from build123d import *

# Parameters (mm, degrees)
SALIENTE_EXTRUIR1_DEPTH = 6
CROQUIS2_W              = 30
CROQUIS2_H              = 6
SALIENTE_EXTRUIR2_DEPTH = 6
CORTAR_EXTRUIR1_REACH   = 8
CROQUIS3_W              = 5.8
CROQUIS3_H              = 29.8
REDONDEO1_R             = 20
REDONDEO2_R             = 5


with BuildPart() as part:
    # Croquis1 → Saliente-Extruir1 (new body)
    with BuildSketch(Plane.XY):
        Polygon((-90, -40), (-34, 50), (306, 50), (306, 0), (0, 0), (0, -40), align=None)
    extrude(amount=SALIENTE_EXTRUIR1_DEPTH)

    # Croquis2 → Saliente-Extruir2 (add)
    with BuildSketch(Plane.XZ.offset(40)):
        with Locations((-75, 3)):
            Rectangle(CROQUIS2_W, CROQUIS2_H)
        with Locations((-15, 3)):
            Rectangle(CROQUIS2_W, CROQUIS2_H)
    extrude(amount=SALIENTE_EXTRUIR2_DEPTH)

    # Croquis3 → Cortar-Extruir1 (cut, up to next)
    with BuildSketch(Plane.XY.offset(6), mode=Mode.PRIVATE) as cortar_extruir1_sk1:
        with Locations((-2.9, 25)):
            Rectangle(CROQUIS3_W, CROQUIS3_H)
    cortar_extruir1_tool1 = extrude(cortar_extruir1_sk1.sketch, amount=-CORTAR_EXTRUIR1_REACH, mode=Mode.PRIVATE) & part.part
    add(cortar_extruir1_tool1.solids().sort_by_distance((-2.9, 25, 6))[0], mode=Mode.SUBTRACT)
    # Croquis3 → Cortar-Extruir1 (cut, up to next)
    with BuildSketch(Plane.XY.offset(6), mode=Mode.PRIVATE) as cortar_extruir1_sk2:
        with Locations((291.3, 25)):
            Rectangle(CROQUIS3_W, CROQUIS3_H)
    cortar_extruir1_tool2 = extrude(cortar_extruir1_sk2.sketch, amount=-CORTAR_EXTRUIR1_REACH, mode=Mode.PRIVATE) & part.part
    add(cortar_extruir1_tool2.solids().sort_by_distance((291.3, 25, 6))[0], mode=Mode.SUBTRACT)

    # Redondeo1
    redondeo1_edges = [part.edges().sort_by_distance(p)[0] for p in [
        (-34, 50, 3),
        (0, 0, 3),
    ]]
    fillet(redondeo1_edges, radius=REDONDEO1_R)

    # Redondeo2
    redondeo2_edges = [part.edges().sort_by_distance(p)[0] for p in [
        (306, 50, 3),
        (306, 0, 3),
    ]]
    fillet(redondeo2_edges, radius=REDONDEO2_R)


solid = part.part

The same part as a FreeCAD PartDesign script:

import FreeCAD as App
import Part
import Sketcher
from FreeCAD import Vector
Q = App.Units.Quantity


def edges_at(feature, points):
    """Names of the edges that pass closest to the given points."""
    edges = feature.Shape.Edges
    near = lambda p: min(range(len(edges)), key=lambda i: edges[i].distToShape(Part.Vertex(*p))[0])
    return sorted({f"Edge{near(p) + 1}" for p in points})


def add_polygon(sketch, points):
    """Adds a closed chain of lines whose ends are joined by coincident constraints."""
    first, n = sketch.GeometryCount, len(points)
    for a, b in zip(points, points[1:] + points[:1]):
        sketch.addGeometry(Part.LineSegment(App.Vector(*a, 0), App.Vector(*b, 0)), False)
    for i in range(n):
        sketch.addConstraint(Sketcher.Constraint("Coincident", first + i, 2, first + (i + 1) % n, 1))

doc = App.newDocument("Part")
params = doc.addObject("Spreadsheet::Sheet", "Params")
for row, (alias, value) in enumerate([
    ("sketch1_width", "90 mm"),
    ("sketch1_width2", "306 mm"),
    ("sketch1_width3", "340 mm"),
    ("sketch1_height", "40 mm"),
    ("sketch1_height2", "50 mm"),
    ("pad1_length", "6 mm"),
    ("sketch2_width", "30 mm"),
    ("sketch2_height", "6 mm"),
    ("pad2_length", "6 mm"),
    ("sketch3_width", "5.8 mm"),
    ("sketch3_height", "29.8 mm"),
    ("sketch4_width", "5.8 mm"),
    ("sketch4_height", "29.8 mm"),
    ("fillet_radius", "20 mm"),
    ("fillet2_radius", "5 mm"),
], start=1):
    params.set(f"A{row}", alias)
    params.set(f"B{row}", "=" + value)
    params.setAlias(f"B{row}", alias)

body = doc.addObject("PartDesign::Body", "Body")

sketch1 = body.newObject("Sketcher::SketchObject", "Sketch")
sketch1.AttachmentSupport = (doc.getObject("XY_Plane"), [""])
sketch1.MapMode = "FlatFace"
add_polygon(sketch1, [(-34, 50), (-90, -40), (0, -40), (0, 0), (306, 0), (306, 50)])
sketch1.addConstraint([
    Sketcher.Constraint("Horizontal", 1),
    Sketcher.Constraint("Vertical", 2),
    Sketcher.Constraint("Horizontal", 3),
    Sketcher.Constraint("Vertical", 4),
    Sketcher.Constraint("Horizontal", 5),
    Sketcher.Constraint("Coincident", 2, 2, -1, 1),
    Sketcher.Constraint("DistanceX", 1, 1, 1, 2, Q("90 mm")),
    Sketcher.Constraint("DistanceX", 3, 1, 3, 2, Q("306 mm")),
    Sketcher.Constraint("DistanceX", 5, 2, 5, 1, Q("340 mm")),
    Sketcher.Constraint("DistanceY", 2, 1, 2, 2, Q("40 mm")),
    Sketcher.Constraint("DistanceY", 4, 1, 4, 2, Q("50 mm")),
])
sketch1.setExpression("Constraints[12]", "Params.sketch1_width")
sketch1.setExpression("Constraints[13]", "Params.sketch1_width2")
sketch1.setExpression("Constraints[14]", "Params.sketch1_width3")
sketch1.setExpression("Constraints[15]", "Params.sketch1_height")
sketch1.setExpression("Constraints[16]", "Params.sketch1_height2")
pad1 = body.newObject("PartDesign::Pad", "Pad")
pad1.Profile = sketch1
pad1.setExpression("Length", "Params.pad1_length")

sketch2 = body.newObject("Sketcher::SketchObject", "Sketch001")
sketch2.AttachmentSupport = (doc.getObject("XZ_Plane"), [""])
sketch2.MapMode = "FlatFace"
sketch2.AttachmentOffset = App.Placement(Vector(0, 0, 40), App.Rotation())
add_polygon(sketch2, [(-90, 6), (-90, 0), (-60, 0), (-60, 6)])
add_polygon(sketch2, [(-30, 6), (-30, 0), (0, 0), (0, 6)])
sketch2.addConstraint([
    Sketcher.Constraint("Vertical", 0),
    Sketcher.Constraint("Horizontal", 1),
    Sketcher.Constraint("Vertical", 2),
    Sketcher.Constraint("Horizontal", 3),
    Sketcher.Constraint("Vertical", 4),
    Sketcher.Constraint("Horizontal", 5),
    Sketcher.Constraint("Vertical", 6),
    Sketcher.Constraint("Horizontal", 7),
    Sketcher.Constraint("Coincident", 5, 2, -1, 1),
    Sketcher.Constraint("PointOnObject", 0, 2, -1),
    Sketcher.Constraint("Horizontal", 3, 2, 6, 2),
    Sketcher.Constraint("Equal", 3, 5),
    Sketcher.Constraint("DistanceX", 1, 1, 1, 2, Q("30 mm")),
    Sketcher.Constraint("DistanceY", 0, 2, 0, 1, Q("6 mm")),
    Sketcher.Constraint("DistanceX", 0, 2, -1, 1, Q("90 mm")),
])
sketch2.setExpression("Constraints[20]", "Params.sketch2_width")
sketch2.setExpression("Constraints[21]", "Params.sketch2_height")
pad2 = body.newObject("PartDesign::Pad", "Pad001")
pad2.Profile = sketch2
pad2.setExpression("Length", "Params.pad2_length")

sketch3 = body.newObject("Sketcher::SketchObject", "Sketch002")
sketch3.AttachmentSupport = (doc.getObject("XY_Plane"), [""])
sketch3.MapMode = "FlatFace"
sketch3.AttachmentOffset = App.Placement(Vector(0, 0, 6), App.Rotation())
add_polygon(sketch3, [(-5.8, 39.9), (-5.8, 10.1), (0, 10.1), (0, 39.9)])
sketch3.addConstraint([
    Sketcher.Constraint("Vertical", 0),
    Sketcher.Constraint("Horizontal", 1),
    Sketcher.Constraint("Vertical", 2),
    Sketcher.Constraint("Horizontal", 3),
    Sketcher.Constraint("PointOnObject", 1, 2, -2),
    Sketcher.Constraint("DistanceX", 1, 1, 1, 2, Q("5.8 mm")),
    Sketcher.Constraint("DistanceY", 0, 2, 0, 1, Q("29.8 mm")),
    Sketcher.Constraint("DistanceY", -1, 1, 0, 2, Q("10.1 mm")),
])
sketch3.setExpression("Constraints[9]", "Params.sketch3_width")
sketch3.setExpression("Constraints[10]", "Params.sketch3_height")
pocket1 = body.newObject("PartDesign::Pocket", "Pocket")
pocket1.Profile = sketch3
pocket1.Type = "UpToFirst"

sketch4 = body.newObject("Sketcher::SketchObject", "Sketch003")
sketch4.AttachmentSupport = (doc.getObject("XY_Plane"), [""])
sketch4.MapMode = "FlatFace"
sketch4.AttachmentOffset = App.Placement(Vector(0, 0, 6), App.Rotation())
add_polygon(sketch4, [(288.4, 39.9), (288.4, 10.1), (294.2, 10.1), (294.2, 39.9)])
sketch4.addConstraint([
    Sketcher.Constraint("Vertical", 0),
    Sketcher.Constraint("Horizontal", 1),
    Sketcher.Constraint("Vertical", 2),
    Sketcher.Constraint("Horizontal", 3),
    Sketcher.Constraint("DistanceX", 1, 1, 1, 2, Q("5.8 mm")),
    Sketcher.Constraint("DistanceY", 0, 2, 0, 1, Q("29.8 mm")),
    Sketcher.Constraint("DistanceX", -1, 1, 0, 2, Q("288.4 mm")),
    Sketcher.Constraint("DistanceY", -1, 1, 0, 2, Q("10.1 mm")),
])
sketch4.setExpression("Constraints[8]", "Params.sketch4_width")
sketch4.setExpression("Constraints[9]", "Params.sketch4_height")
pocket2 = body.newObject("PartDesign::Pocket", "Pocket001")
pocket2.Profile = sketch4
pocket2.Type = "UpToFirst"
doc.recompute()

fillet = body.newObject("PartDesign::Fillet", "Fillet")
fillet.Base = (pocket2, edges_at(pocket2, [(-34, 50, 3), (0, 0, 3)]))
fillet.setExpression("Radius", "Params.fillet_radius")
doc.recompute()

fillet2 = body.newObject("PartDesign::Fillet", "Fillet001")
fillet2.Base = (fillet, edges_at(fillet, [(306, 50, 3), (306, 0, 3)]))
fillet2.setExpression("Radius", "Params.fillet2_radius")

doc.recompute()
